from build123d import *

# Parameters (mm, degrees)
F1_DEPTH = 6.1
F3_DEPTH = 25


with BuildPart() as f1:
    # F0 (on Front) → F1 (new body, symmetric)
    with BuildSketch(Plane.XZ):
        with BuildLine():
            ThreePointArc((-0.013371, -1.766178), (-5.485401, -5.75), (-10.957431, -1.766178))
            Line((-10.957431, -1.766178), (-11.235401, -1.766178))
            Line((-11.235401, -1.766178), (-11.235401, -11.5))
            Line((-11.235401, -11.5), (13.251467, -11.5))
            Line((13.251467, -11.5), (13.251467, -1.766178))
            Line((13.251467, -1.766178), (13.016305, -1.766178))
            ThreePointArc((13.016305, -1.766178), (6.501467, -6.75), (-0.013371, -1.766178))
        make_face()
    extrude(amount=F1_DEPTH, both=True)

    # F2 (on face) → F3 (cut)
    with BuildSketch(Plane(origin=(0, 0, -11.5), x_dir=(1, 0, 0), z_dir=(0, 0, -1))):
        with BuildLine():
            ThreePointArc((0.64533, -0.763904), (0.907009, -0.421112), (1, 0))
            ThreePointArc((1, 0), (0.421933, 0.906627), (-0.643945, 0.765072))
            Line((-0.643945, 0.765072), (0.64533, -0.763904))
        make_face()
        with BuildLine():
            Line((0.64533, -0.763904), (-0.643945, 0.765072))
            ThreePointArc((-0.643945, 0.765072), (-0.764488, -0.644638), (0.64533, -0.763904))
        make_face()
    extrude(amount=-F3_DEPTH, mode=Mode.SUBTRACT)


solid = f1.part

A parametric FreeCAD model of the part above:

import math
import FreeCAD as App
import Part
import Sketcher
from FreeCAD import Vector
Q = App.Units.Quantity

doc = App.newDocument("Part")
body = doc.addObject("PartDesign::Body", "Body")

# Sketch on XZ plane
sketch1 = doc.addObject("Sketcher::SketchObject", "Sketch")
body.addObject(sketch1)
sketch1.AttachmentSupport = (doc.XZ_Plane, [""])
sketch1.MapMode = "FlatFace"
sketch1.addGeometry([
    Part.ArcOfCircle(Part.Circle(Vector(-5.485401, 0, 0), Vector(0, 0, 1), 5.75), math.radians(-162.111757), math.radians(-17.888243)),  # 0
    Part.LineSegment(Vector(-10.957431, -1.766178, 0), Vector(-11.235401, -1.766178, 0)),  # 1
    Part.LineSegment(Vector(-11.235401, -1.766178, 0), Vector(-11.235401, -11.5, 0)),  # 2
    Part.LineSegment(Vector(-11.235401, -11.5, 0), Vector(13.251467, -11.5, 0)),  # 3
    Part.LineSegment(Vector(13.251467, -11.5, 0), Vector(13.251467, -1.766178, 0)),  # 4
    Part.LineSegment(Vector(13.251467, -1.766178, 0), Vector(13.016305, -1.766178, 0)),  # 5
    Part.ArcOfCircle(Part.Circle(Vector(6.501467, 0, 0), Vector(0, 0, 1), 6.75), math.radians(-164.831655), math.radians(-15.168345)),  # 6
], False)
sketch1.addConstraint([
    Sketcher.Constraint("Coincident", 0, 1, 1, 1),
    Sketcher.Constraint("Coincident", 1, 2, 2, 1),
    Sketcher.Constraint("Coincident", 2, 2, 3, 1),
    Sketcher.Constraint("Coincident", 3, 2, 4, 1),
    Sketcher.Constraint("Coincident", 4, 2, 5, 1),
    Sketcher.Constraint("Coincident", 5, 2, 6, 2),
    Sketcher.Constraint("Coincident", 6, 1, 0, 2),
    Sketcher.Constraint("Horizontal", 1),
    Sketcher.Constraint("Vertical", 2),
    Sketcher.Constraint("Horizontal", 3),
    Sketcher.Constraint("Vertical", 4),
    Sketcher.Constraint("Horizontal", 5),
    Sketcher.Constraint("PointOnObject", 0, 3, -1),
    Sketcher.Constraint("PointOnObject", 6, 3, -1),
    Sketcher.Constraint("Horizontal", 1, 2, 4, 2),
    Sketcher.Constraint("Horizontal", 5, 2, 6, 1),
    Sketcher.Constraint("Radius", 0, Q("5.75 mm")),
    Sketcher.Constraint("Radius", 6, Q("6.75 mm")),
    Sketcher.Constraint("DistanceY", 2, 2, -1, 1, Q("11.5 mm")),
    Sketcher.Constraint("DistanceX", 1, 2, 0, 3, Q("5.75 mm")),
    Sketcher.Constraint("DistanceX", 6, 3, 3, 2, Q("6.75 mm")),
    Sketcher.Constraint("DistanceX", 1, 2, 1, 1, Q("0.27797 mm")),
    Sketcher.Constraint("DistanceX", 0, 3, -1, 1, Q("5.485401 mm")),
])
pad1 = doc.addObject("PartDesign::Pad", "Pad")
body.addObject(pad1)
pad1.Profile = sketch1
pad1.Length = 12.2
pad1.Midplane = True

# Sketch on XY plane
sketch2 = doc.addObject("Sketcher::SketchObject", "Sketch001")
body.addObject(sketch2)
sketch2.AttachmentSupport = (doc.XY_Plane, [""])
sketch2.MapMode = "FlatFace"
sketch2.AttachmentOffset = App.Placement(Vector(0, 0, -11.5), App.Rotation())
sketch2.addGeometry([
    Part.ArcOfCircle(Part.Circle(Vector(0.000003, 0.000001, 0), Vector(0, 0, 1), 0.999997), math.radians(-0.000079), math.radians(49.809652)),
    Part.ArcOfCircle(Part.Circle(Vector(0, 0, 0), Vector(0, 0, 1), 1), math.radians(-130.086603), math.radians(-0.000006)),
    Part.ArcOfCircle(Part.Circle(Vector(0, 0, 0), Vector(0, 0, 1), 1), math.radians(49.809586), math.radians(229.913382)),
], False)
sketch2.addConstraint([
    Sketcher.Constraint("Tangent", 0, 1, 1, 2),
    Sketcher.Constraint("Tangent", 1, 1, 2, 2),
    Sketcher.Constraint("Tangent", 2, 1, 0, 2),
    Sketcher.Constraint("Coincident", 0, 3, -1, 1),
    Sketcher.Constraint("PointOnObject", 0, 1, -1),
    Sketcher.Constraint("Radius", 1, Q("1 mm")),
    Sketcher.Constraint("DistanceX", -1, 1, 2, 1, Q("0.64533 mm")),
    Sketcher.Constraint("DistanceY", 1, 1, 2, 3, Q("0.765072 mm")),
])
pocket1 = doc.addObject("PartDesign::Pocket", "Pocket")
body.addObject(pocket1)
pocket1.Profile = sketch2
pocket1.Length = 25
pocket1.Reversed = True

doc.recompute()
